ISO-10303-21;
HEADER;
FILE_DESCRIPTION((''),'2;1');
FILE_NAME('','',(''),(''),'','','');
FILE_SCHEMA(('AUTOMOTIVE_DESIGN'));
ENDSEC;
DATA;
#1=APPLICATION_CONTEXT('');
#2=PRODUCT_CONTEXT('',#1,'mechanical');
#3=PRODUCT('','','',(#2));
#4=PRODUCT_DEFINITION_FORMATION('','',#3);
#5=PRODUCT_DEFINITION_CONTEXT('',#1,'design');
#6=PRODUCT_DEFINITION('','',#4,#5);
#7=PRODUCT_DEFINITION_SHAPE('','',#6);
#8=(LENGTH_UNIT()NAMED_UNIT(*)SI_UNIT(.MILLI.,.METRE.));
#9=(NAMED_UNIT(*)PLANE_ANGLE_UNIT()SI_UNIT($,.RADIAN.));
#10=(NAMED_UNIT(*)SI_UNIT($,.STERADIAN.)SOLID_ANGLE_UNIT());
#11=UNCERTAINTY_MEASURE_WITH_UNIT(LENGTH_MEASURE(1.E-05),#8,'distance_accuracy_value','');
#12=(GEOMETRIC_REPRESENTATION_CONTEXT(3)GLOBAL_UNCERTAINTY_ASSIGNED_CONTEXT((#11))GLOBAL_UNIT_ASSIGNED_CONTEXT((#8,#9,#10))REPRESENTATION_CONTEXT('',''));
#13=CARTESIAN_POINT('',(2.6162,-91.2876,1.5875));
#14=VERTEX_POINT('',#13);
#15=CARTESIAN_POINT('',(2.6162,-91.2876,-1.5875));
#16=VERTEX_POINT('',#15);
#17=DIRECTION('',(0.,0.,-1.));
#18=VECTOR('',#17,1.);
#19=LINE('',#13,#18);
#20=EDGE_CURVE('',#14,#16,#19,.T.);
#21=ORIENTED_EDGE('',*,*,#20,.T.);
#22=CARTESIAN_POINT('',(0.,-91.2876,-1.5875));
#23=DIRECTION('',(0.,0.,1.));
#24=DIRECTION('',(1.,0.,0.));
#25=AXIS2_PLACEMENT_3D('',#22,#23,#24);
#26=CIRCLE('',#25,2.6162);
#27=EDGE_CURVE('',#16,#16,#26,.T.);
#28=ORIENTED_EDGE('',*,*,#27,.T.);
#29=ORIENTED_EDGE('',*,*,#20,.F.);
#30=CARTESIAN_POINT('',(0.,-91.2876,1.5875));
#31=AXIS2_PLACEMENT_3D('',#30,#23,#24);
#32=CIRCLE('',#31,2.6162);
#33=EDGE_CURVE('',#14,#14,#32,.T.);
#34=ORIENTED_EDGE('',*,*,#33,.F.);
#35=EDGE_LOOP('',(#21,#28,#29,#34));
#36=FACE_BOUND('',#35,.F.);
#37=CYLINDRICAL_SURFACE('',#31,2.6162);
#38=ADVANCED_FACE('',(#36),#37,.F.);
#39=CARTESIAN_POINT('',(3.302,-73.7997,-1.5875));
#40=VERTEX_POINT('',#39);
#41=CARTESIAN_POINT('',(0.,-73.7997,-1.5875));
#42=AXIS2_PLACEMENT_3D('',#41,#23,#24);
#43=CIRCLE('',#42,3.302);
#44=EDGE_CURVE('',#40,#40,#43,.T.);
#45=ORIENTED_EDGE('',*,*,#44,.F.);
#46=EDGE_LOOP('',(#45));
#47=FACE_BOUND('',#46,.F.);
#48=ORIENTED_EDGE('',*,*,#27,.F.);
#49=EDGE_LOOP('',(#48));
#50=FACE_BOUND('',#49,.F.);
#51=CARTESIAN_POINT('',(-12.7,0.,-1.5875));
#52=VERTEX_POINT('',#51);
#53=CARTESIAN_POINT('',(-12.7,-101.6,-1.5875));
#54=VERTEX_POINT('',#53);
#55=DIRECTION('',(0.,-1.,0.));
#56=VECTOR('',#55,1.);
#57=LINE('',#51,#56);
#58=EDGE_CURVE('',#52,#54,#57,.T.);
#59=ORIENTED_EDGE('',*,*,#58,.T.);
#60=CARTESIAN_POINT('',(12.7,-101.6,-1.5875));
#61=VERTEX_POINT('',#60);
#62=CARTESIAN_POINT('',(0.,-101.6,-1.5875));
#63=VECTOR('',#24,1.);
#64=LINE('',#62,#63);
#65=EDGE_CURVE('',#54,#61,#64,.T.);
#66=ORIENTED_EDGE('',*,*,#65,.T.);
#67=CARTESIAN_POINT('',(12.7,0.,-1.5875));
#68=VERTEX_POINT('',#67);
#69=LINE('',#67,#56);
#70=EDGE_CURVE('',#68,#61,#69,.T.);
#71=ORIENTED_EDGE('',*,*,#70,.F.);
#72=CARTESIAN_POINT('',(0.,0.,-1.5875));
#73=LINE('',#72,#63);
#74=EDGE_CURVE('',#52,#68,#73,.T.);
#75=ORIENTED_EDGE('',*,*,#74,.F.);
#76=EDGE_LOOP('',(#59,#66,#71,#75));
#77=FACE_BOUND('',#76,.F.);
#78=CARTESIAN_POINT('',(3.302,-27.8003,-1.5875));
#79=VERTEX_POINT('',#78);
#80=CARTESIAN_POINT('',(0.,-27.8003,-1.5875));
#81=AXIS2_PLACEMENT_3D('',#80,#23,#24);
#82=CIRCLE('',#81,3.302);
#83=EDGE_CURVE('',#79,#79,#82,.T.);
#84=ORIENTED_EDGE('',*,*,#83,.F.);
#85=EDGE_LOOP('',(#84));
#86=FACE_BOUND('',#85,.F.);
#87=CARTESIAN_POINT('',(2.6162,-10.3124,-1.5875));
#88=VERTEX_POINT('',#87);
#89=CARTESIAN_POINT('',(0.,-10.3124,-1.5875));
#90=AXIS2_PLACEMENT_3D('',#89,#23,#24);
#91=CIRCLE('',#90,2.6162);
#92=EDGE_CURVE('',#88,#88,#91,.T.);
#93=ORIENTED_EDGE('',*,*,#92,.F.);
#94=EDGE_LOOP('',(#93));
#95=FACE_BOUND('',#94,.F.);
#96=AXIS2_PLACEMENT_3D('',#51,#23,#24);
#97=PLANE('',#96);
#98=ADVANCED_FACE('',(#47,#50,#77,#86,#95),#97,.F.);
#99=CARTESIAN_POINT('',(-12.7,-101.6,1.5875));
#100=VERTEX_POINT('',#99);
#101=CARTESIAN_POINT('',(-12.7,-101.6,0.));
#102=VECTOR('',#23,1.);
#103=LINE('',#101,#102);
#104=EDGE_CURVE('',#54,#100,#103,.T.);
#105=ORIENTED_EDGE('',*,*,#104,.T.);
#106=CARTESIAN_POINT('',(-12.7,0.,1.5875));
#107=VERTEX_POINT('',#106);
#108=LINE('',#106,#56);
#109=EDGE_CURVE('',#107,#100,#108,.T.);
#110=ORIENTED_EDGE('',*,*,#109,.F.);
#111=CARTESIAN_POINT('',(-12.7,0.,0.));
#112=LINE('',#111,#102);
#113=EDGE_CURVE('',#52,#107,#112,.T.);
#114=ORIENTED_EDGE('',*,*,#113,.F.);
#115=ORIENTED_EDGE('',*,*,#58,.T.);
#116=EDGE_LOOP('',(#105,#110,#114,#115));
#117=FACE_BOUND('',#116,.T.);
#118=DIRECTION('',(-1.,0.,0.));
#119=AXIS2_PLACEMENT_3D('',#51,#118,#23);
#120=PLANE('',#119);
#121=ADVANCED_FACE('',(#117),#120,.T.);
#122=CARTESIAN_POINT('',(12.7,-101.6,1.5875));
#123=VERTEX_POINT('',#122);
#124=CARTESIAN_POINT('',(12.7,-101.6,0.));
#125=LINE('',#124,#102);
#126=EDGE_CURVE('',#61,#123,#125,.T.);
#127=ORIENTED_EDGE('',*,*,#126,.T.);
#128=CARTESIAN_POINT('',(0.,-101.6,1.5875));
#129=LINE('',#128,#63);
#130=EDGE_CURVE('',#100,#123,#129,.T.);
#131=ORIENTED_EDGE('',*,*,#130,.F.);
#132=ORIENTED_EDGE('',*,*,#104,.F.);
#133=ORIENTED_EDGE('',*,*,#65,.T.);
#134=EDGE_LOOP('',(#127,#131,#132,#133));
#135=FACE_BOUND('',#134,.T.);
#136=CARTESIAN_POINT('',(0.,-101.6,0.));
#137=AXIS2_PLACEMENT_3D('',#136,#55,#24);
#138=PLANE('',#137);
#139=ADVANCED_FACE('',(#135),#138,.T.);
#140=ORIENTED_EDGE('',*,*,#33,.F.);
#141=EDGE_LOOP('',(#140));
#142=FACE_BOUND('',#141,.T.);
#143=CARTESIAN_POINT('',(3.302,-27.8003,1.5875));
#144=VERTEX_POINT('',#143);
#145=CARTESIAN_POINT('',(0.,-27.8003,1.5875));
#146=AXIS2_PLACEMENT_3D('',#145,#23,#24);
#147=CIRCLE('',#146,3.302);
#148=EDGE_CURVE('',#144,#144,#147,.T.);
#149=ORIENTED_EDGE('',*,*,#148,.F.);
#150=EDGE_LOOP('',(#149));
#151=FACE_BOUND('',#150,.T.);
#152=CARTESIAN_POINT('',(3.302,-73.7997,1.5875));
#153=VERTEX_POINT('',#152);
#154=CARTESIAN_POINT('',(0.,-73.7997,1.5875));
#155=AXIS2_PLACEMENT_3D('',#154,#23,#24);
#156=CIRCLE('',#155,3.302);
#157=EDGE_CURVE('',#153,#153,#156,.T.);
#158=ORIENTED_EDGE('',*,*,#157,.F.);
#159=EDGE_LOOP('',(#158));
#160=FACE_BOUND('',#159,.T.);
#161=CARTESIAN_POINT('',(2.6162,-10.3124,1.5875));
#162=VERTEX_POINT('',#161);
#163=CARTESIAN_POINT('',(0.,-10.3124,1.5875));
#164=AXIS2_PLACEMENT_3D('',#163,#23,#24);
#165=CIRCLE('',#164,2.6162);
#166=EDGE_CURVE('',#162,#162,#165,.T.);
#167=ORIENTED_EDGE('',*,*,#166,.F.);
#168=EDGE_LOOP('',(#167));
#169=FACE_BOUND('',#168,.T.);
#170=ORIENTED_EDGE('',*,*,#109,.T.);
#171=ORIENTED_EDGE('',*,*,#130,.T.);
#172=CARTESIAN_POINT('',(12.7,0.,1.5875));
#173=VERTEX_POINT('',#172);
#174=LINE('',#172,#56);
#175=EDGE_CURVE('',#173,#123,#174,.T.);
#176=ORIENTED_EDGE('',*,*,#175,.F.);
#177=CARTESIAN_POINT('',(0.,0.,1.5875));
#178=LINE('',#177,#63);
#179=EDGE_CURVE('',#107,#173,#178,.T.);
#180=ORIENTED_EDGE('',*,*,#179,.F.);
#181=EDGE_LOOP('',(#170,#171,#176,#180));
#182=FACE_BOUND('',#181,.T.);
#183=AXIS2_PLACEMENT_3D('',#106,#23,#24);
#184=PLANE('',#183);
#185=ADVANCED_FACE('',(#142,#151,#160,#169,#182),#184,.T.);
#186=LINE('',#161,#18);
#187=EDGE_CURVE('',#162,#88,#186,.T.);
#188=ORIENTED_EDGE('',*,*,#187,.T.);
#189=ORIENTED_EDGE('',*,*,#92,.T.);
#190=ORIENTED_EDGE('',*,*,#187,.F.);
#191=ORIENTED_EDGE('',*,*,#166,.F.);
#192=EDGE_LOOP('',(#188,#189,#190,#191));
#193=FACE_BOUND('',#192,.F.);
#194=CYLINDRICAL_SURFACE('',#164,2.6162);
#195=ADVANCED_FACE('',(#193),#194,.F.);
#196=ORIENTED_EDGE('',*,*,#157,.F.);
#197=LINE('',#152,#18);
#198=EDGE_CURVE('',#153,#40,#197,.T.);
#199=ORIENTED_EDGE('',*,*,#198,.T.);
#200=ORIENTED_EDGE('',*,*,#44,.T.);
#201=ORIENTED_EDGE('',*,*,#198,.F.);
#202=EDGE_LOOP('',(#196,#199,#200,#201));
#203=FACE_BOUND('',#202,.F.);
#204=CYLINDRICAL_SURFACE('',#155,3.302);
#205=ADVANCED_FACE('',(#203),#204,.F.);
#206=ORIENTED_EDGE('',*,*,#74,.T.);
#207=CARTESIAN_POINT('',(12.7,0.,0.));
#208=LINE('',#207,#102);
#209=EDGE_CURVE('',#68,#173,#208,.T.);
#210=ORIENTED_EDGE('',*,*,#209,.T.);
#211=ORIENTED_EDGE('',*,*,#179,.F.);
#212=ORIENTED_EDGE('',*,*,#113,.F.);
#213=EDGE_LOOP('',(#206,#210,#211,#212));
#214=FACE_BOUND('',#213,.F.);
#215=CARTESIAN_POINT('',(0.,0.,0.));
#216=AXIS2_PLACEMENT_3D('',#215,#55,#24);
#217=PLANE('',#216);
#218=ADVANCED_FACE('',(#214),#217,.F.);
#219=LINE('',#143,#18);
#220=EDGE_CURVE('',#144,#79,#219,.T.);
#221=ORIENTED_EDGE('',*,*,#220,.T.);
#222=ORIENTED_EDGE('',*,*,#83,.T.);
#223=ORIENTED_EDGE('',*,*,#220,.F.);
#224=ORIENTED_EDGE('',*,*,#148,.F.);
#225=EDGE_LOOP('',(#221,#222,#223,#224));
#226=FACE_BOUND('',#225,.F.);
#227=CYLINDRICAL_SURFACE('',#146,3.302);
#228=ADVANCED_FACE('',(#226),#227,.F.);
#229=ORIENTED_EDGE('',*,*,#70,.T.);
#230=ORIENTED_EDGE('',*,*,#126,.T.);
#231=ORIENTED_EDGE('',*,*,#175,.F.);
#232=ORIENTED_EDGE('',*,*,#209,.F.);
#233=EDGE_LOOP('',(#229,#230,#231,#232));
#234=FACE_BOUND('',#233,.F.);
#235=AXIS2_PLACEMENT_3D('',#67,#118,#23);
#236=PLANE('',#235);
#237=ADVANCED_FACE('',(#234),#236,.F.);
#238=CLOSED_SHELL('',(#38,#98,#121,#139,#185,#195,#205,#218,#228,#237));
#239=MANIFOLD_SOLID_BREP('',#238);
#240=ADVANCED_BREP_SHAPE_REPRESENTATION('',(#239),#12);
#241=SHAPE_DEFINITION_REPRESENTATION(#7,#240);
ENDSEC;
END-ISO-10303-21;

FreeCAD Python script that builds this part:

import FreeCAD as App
import Part
import Sketcher
from FreeCAD import Vector
Q = App.Units.Quantity

doc = App.newDocument("Part")
body = doc.addObject("PartDesign::Body", "Body")

# Sketch on XZ plane
sketch1 = doc.addObject("Sketcher::SketchObject", "Sketch")
body.addObject(sketch1)
sketch1.AttachmentSupport = (doc.XZ_Plane, [""])
sketch1.MapMode = "FlatFace"
sketch1.addGeometry([
    Part.LineSegment(Vector(-12.7, 1.6, 0), Vector(-12.7, -1.6, 0)),
    Part.LineSegment(Vector(-12.7, -1.6, 0), Vector(12.7, -1.6, 0)),
    Part.LineSegment(Vector(12.7, -1.6, 0), Vector(12.7, 1.6, 0)),
    Part.LineSegment(Vector(12.7, 1.6, 0), Vector(-12.7, 1.6, 0)),
], False)
sketch1.addConstraint([
    Sketcher.Constraint("Coincident", 0, 2, 1, 1),
    Sketcher.Constraint("Coincident", 1, 2, 2, 1),
    Sketcher.Constraint("Coincident", 2, 2, 3, 1),
    Sketcher.Constraint("Coincident", 3, 2, 0, 1),
    Sketcher.Constraint("Vertical", 0),
    Sketcher.Constraint("Horizontal", 1),
    Sketcher.Constraint("Vertical", 2),
    Sketcher.Constraint("Horizontal", 3),
    Sketcher.Constraint("Symmetric", 0, 2, 2, 2, -1, 1),
    Sketcher.Constraint("DistanceX", 1, 1, 1, 2, Q("1 in")),
    Sketcher.Constraint("DistanceY", 0, 2, 0, 1, Q("0.125 in")),
])
pad1 = doc.addObject("PartDesign::Pad", "Pad")
body.addObject(pad1)
pad1.Profile = sketch1
pad1.Length = Q("4 in")

# Sketch on XY plane
sketch2 = doc.addObject("Sketcher::SketchObject", "Sketch001")
body.addObject(sketch2)
sketch2.AttachmentSupport = (doc.XY_Plane, [""])
sketch2.MapMode = "FlatFace"
sketch2.AttachmentOffset = App.Placement(Vector(0, 0, 0.0625 * 25.4), App.Rotation())
sketch2.addGeometry([
    Part.Circle(Vector(0, -91.3, 0), Vector(0, 0, 1), 2.6),
    Part.Circle(Vector(0, -10.3, 0), Vector(0, 0, 1), 2.6),
    Part.Circle(Vector(0, -73.8, 0), Vector(0, 0, 1), 3.3),
    Part.Circle(Vector(0, -27.8, 0), Vector(0, 0, 1), 3.3),
], False)
sketch2.addConstraint([
    Sketcher.Constraint("Equal", 0, 1),
    Sketcher.Constraint("Equal", 2, 3),
    Sketcher.Constraint("PointOnObject", 0, 3, -2),
    Sketcher.Constraint("PointOnObject", 1, 3, -2),
    Sketcher.Constraint("PointOnObject", 2, 3, -2),
    Sketcher.Constraint("PointOnObject", 3, 3, -2),
    Sketcher.Constraint("Diameter", 2, Q("0.26 in")),
    Sketcher.Constraint("Diameter", 0, Q("0.206 in")),
    Sketcher.Constraint("DistanceY", 0, 3, -1, 1, Q("3.594 in")),
    Sketcher.Constraint("DistanceY", 1, 3, -1, 1, Q("0.406 in")),
    Sketcher.Constraint("DistanceY", 2, 3, 3, 3, Q("1.811 in")),
    Sketcher.Constraint("DistanceY", 2, 3, -1, 1, Q("2.9055 in")),
])
pocket1 = doc.addObject("PartDesign::Pocket", "Pocket")
body.addObject(pocket1)
pocket1.Profile = sketch2
pocket1.Type = "ThroughAll"

doc.recompute()
